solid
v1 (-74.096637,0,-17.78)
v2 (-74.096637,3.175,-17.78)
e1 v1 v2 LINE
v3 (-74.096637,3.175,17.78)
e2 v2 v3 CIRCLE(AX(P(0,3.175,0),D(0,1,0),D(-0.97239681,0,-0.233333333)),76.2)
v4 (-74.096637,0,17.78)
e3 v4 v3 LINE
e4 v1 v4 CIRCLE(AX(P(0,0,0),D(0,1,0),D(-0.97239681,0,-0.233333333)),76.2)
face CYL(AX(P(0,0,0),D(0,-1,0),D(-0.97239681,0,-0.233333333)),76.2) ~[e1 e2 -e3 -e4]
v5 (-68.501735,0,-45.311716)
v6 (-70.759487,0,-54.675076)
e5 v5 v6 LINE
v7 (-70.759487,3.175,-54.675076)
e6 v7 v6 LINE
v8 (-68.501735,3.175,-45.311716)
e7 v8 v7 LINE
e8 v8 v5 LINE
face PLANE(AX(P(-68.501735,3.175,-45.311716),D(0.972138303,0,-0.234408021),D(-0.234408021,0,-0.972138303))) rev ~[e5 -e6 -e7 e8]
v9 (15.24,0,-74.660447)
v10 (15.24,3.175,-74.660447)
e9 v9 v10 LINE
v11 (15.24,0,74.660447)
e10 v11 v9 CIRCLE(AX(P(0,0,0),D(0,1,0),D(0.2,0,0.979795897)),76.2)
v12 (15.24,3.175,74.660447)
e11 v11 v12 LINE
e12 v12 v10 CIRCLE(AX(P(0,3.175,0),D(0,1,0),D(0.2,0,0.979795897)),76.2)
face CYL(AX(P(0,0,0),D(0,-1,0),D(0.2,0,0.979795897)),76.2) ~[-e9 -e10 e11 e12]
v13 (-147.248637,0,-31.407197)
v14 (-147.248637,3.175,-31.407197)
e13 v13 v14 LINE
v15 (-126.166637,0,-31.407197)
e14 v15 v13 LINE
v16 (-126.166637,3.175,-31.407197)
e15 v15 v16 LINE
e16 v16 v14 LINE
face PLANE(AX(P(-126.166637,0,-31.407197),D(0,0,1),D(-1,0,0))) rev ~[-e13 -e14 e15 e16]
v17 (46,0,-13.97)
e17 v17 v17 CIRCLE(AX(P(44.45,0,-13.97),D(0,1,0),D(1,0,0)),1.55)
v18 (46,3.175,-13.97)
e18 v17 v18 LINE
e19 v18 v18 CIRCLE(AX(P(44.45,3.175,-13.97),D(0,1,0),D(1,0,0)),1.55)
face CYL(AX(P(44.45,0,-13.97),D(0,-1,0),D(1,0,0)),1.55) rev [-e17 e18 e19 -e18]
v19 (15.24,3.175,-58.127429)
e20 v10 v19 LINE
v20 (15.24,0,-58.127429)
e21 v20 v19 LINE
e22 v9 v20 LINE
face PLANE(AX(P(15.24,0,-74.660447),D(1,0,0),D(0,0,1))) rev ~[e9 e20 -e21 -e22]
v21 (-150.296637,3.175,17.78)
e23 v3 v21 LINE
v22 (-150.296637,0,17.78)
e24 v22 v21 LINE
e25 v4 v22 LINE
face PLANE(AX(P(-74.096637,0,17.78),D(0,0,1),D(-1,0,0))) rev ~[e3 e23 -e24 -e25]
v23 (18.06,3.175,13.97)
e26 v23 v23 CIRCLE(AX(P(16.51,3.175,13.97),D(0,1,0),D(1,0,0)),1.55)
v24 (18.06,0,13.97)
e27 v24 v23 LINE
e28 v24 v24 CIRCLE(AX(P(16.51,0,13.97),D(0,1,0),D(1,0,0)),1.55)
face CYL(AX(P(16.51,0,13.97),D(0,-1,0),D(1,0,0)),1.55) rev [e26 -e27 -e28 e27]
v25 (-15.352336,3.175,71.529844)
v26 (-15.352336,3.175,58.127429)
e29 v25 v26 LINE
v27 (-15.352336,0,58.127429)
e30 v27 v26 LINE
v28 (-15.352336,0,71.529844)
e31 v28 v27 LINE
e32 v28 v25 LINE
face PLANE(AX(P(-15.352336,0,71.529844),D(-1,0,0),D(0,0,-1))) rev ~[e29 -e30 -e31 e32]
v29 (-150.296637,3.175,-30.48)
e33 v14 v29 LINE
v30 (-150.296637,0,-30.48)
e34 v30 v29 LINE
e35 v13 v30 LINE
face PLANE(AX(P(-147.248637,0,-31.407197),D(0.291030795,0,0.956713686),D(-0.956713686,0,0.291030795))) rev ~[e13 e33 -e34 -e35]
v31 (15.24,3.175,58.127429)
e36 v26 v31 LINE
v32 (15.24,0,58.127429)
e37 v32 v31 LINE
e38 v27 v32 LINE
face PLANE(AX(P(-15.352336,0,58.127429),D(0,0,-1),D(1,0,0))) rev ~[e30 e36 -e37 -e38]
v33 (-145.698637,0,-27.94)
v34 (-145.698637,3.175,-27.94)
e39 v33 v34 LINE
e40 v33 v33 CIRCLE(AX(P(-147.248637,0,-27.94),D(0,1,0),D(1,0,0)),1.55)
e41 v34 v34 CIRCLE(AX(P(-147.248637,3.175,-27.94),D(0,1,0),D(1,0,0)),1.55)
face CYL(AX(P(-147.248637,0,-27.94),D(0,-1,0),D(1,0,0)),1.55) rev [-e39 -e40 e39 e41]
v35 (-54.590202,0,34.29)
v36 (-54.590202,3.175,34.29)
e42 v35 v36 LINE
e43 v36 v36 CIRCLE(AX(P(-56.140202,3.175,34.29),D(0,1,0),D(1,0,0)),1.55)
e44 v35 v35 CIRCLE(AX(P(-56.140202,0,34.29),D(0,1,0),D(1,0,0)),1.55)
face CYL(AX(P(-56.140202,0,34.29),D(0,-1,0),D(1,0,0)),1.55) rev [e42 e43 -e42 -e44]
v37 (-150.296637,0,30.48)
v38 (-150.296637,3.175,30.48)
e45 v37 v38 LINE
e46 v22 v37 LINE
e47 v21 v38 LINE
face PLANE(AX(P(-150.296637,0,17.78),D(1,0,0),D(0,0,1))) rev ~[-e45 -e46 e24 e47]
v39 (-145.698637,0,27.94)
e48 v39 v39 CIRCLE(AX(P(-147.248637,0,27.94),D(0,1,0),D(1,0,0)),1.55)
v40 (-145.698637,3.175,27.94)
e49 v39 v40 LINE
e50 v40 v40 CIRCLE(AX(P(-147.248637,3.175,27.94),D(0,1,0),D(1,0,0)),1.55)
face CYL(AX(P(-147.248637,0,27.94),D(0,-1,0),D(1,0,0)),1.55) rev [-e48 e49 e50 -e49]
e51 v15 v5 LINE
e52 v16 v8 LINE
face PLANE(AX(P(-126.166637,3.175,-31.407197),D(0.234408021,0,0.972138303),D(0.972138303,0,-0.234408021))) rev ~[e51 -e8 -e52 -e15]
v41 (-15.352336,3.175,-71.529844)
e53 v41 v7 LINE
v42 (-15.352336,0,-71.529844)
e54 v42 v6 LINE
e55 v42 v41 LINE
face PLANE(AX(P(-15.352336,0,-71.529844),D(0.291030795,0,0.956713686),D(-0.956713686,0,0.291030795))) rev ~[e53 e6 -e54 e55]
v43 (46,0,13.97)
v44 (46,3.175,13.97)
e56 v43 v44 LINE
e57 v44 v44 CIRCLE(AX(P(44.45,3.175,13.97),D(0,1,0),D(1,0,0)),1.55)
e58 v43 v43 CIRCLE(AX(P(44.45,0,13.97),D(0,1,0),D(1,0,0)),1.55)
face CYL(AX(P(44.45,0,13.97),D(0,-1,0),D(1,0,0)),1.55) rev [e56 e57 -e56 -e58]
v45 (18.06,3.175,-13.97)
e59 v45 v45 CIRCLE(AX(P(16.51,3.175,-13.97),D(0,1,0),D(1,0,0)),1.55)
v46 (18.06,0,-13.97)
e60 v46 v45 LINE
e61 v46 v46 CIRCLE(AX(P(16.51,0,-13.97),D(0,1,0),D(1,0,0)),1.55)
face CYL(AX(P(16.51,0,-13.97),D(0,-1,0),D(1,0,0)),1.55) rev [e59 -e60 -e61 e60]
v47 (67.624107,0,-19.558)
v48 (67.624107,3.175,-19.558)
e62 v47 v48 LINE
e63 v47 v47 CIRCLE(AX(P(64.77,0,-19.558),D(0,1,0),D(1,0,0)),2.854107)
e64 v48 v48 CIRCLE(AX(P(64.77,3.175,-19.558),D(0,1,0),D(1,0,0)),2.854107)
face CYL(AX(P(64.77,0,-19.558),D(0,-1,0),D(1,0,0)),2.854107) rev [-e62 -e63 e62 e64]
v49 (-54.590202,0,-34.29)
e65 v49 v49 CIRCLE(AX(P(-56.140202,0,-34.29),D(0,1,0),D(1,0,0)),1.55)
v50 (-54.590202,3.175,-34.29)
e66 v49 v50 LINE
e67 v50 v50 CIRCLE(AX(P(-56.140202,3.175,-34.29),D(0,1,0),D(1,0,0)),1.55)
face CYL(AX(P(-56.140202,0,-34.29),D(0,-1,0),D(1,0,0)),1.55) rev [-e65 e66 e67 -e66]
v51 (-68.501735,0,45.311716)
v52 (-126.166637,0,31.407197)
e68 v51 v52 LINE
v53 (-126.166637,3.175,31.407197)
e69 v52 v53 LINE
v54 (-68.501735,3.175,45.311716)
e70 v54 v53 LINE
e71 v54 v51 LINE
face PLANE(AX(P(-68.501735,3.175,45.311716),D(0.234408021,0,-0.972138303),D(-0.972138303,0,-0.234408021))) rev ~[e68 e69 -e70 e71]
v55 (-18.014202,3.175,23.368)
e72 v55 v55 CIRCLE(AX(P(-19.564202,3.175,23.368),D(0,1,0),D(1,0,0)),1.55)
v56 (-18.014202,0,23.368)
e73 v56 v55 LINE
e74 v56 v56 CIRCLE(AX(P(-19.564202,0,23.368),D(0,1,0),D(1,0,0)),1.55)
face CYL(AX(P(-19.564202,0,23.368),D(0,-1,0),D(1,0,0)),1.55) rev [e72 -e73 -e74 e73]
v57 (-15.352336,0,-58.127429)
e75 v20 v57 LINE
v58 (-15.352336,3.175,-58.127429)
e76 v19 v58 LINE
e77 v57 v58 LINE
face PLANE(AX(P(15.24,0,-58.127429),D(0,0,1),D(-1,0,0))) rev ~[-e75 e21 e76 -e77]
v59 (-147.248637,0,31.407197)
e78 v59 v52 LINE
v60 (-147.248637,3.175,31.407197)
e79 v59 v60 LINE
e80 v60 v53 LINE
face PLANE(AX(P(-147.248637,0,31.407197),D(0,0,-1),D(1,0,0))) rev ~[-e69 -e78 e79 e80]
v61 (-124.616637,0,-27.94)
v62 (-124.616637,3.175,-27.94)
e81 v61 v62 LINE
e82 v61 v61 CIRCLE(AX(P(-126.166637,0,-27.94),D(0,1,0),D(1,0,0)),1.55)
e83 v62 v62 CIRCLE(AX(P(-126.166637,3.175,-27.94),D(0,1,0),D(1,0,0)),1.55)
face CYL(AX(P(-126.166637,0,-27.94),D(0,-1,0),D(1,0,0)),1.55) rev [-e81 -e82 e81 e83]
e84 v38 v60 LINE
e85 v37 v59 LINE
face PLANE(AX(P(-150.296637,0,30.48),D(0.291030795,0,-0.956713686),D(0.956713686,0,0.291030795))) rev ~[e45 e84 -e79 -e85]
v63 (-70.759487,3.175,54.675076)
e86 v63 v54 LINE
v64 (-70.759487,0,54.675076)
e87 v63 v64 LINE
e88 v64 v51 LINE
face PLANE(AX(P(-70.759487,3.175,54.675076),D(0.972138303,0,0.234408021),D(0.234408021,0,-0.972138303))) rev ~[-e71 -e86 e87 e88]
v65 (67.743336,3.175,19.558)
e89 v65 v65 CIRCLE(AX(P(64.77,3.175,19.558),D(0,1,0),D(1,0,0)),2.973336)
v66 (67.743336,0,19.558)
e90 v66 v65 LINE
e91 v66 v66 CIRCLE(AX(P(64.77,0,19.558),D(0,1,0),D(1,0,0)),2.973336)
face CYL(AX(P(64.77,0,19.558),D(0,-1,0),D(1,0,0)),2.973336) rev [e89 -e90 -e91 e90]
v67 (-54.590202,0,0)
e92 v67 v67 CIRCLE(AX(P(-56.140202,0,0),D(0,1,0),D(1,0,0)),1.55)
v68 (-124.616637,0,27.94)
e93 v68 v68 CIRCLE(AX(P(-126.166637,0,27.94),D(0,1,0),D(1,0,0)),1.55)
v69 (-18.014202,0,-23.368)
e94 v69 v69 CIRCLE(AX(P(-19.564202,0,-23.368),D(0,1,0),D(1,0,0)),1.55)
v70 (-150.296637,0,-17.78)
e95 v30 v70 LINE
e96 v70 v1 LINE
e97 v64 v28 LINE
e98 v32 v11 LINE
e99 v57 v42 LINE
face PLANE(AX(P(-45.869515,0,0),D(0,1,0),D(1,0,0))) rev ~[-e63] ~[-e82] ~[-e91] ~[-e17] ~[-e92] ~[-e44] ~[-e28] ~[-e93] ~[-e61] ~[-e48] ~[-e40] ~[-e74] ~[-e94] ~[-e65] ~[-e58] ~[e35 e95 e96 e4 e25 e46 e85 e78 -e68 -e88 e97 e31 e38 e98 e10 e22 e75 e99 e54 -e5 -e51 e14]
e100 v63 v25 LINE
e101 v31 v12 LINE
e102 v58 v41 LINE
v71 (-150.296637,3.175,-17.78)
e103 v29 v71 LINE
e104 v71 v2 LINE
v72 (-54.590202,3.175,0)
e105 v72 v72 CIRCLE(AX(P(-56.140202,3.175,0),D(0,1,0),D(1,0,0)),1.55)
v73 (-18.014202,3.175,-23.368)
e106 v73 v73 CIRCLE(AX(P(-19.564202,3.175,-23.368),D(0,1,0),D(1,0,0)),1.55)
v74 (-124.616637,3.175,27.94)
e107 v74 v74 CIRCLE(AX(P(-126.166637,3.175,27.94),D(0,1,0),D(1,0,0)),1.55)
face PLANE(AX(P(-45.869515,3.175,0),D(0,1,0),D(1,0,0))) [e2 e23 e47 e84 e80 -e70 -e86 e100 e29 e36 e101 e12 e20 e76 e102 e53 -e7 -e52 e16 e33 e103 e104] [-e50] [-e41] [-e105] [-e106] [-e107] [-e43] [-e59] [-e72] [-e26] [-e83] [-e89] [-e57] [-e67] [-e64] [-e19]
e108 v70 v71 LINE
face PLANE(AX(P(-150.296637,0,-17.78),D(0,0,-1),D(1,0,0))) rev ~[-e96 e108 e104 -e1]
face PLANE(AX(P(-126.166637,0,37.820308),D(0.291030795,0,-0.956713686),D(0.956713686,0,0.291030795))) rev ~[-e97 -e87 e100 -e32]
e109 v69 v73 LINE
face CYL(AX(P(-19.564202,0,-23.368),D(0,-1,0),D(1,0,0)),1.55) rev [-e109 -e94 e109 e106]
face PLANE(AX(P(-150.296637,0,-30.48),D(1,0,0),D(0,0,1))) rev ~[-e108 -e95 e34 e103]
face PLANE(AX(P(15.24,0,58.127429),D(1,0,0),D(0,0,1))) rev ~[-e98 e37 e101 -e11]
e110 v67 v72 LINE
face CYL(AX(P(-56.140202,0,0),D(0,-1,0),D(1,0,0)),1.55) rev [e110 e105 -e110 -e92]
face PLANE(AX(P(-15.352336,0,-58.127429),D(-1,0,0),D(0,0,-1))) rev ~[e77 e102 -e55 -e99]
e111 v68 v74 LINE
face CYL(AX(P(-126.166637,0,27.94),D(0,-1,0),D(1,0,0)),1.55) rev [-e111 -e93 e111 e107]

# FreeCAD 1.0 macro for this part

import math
import FreeCAD as App
import Part
import Sketcher

V = App.Vector
Q = App.Units.Quantity


def add_polygon(sketch, points):
    """Adds a closed chain of lines whose ends are joined by coincident constraints."""
    first, n = sketch.GeometryCount, len(points)
    for a, b in zip(points, points[1:] + points[:1]):
        sketch.addGeometry(Part.LineSegment(App.Vector(*a, 0), App.Vector(*b, 0)), False)
    for i in range(n):
        sketch.addConstraint(Sketcher.Constraint("Coincident", first + i, 2, first + (i + 1) % n, 1))

doc = App.newDocument("Part")
body = doc.addObject("PartDesign::Body", "Body")

sketch1 = body.newObject("Sketcher::SketchObject", "Sketch")
sketch1.AttachmentSupport = (doc.getObject("XZ_Plane"), [""])
sketch1.MapMode = "FlatFace"
sketch1.addGeometry([
    Part.LineSegment(V(-15.352336, -71.529844, 0), V(-126.166637, -37.820308, 0)),
    Part.LineSegment(V(-126.166637, -37.820308, 0), V(-126.166637, -31.407197, 0)),
    Part.LineSegment(V(-126.166637, -31.407197, 0), V(-147.248637, -31.407197, 0)),
    Part.LineSegment(V(-147.248637, -31.407197, 0), V(-150.296637, -30.48, 0)),
    Part.LineSegment(V(-150.296637, -30.48, 0), V(-150.296637, -17.78, 0)),
    Part.LineSegment(V(-150.296637, -17.78, 0), V(-74.096637, -17.78, 0)),
    Part.ArcOfCircle(Part.Circle(V(0, 0, 0), V(0, 0, 1), 76.2), math.radians(166.506601), math.radians(193.493399)),
    Part.LineSegment(V(-74.096637, 17.78, 0), V(-150.296637, 17.78, 0)),
    Part.LineSegment(V(-150.296637, 17.78, 0), V(-150.296637, 30.48, 0)),
    Part.LineSegment(V(-150.296637, 30.48, 0), V(-147.248637, 31.407197, 0)),
    Part.LineSegment(V(-147.248637, 31.407197, 0), V(-126.166637, 31.407197, 0)),
    Part.LineSegment(V(-126.166637, 31.407197, 0), V(-126.166637, 37.820308, 0)),
    Part.LineSegment(V(-126.166637, 37.820308, 0), V(-15.352336, 71.529844, 0)),
    Part.LineSegment(V(-15.352336, 71.529844, 0), V(-15.352336, 58.127429, 0)),
    Part.LineSegment(V(-15.352336, 58.127429, 0), V(15.24, 58.127429, 0)),
    Part.LineSegment(V(15.24, 58.127429, 0), V(15.24, 74.660447, 0)),
    Part.ArcOfCircle(Part.Circle(V(0, 0, 0), V(0, 0, 1), 76.2), math.radians(-78.463041), math.radians(78.463041)),
    Part.LineSegment(V(15.24, -74.660447, 0), V(15.24, -58.127429, 0)),
    Part.LineSegment(V(15.24, -58.127429, 0), V(-15.352336, -58.127429, 0)),
    Part.LineSegment(V(-15.352336, -58.127429, 0), V(-15.352336, -71.529844, 0)),
    Part.Circle(V(-147.248637, 27.94, 0), V(0, 0, 1), 1.55),
    Part.Circle(V(-126.166637, 27.94, 0), V(0, 0, 1), 1.55),
    Part.Circle(V(-56.140202, 34.29, 0), V(0, 0, 1), 1.55),
    Part.Circle(V(-19.564202, 23.368, 0), V(0, 0, 1), 1.55),
    Part.Circle(V(64.77, 19.558, 0), V(0, 0, 1), 2.973336),
    Part.Circle(V(16.51, 13.97, 0), V(0, 0, 1), 1.55),
    Part.Circle(V(44.45, 13.97, 0), V(0, 0, 1), 1.55),
    Part.Circle(V(-56.140202, 0, 0), V(0, 0, 1), 1.55),
    Part.Circle(V(-147.248637, -27.94, 0), V(0, 0, 1), 1.55),
    Part.Circle(V(-126.166637, -27.94, 0), V(0, 0, 1), 1.55),
    Part.Circle(V(-56.140202, -34.29, 0), V(0, 0, 1), 1.55),
    Part.Circle(V(16.51, -13.97, 0), V(0, 0, 1), 1.55),
    Part.Circle(V(44.45, -13.97, 0), V(0, 0, 1), 1.55),
    Part.Circle(V(-19.564202, -23.368, 0), V(0, 0, 1), 1.55),
    Part.Circle(V(64.77, -19.558, 0), V(0, 0, 1), 2.854107),
], False)
sketch1.addConstraint([
    Sketcher.Constraint("Coincident", 0, 2, 1, 1),
    Sketcher.Constraint("Coincident", 1, 2, 2, 1),
    Sketcher.Constraint("Coincident", 2, 2, 3, 1),
    Sketcher.Constraint("Coincident", 3, 2, 4, 1),
    Sketcher.Constraint("Coincident", 4, 2, 5, 1),
    Sketcher.Constraint("Coincident", 5, 2, 6, 2),
    Sketcher.Constraint("Coincident", 6, 1, 7, 1),
    Sketcher.Constraint("Coincident", 7, 2, 8, 1),
    Sketcher.Constraint("Coincident", 8, 2, 9, 1),
    Sketcher.Constraint("Coincident", 9, 2, 10, 1),
    Sketcher.Constraint("Coincident", 10, 2, 11, 1),
    Sketcher.Constraint("Coincident", 11, 2, 12, 1),
    Sketcher.Constraint("Coincident", 12, 2, 13, 1),
    Sketcher.Constraint("Coincident", 13, 2, 14, 1),
    Sketcher.Constraint("Coincident", 14, 2, 15, 1),
    Sketcher.Constraint("Coincident", 15, 2, 16, 2),
    Sketcher.Constraint("Coincident", 16, 1, 17, 1),
    Sketcher.Constraint("Coincident", 17, 2, 18, 1),
    Sketcher.Constraint("Coincident", 18, 2, 19, 1),
    Sketcher.Constraint("Coincident", 19, 2, 0, 1),
    Sketcher.Constraint("Vertical", 1),
    Sketcher.Constraint("Horizontal", 2),
    Sketcher.Constraint("Vertical", 4),
    Sketcher.Constraint("Horizontal", 5),
    Sketcher.Constraint("Horizontal", 7),
    Sketcher.Constraint("Vertical", 8),
    Sketcher.Constraint("Horizontal", 10),
    Sketcher.Constraint("Vertical", 11),
    Sketcher.Constraint("Vertical", 13),
    Sketcher.Constraint("Horizontal", 14),
    Sketcher.Constraint("Vertical", 15),
    Sketcher.Constraint("Vertical", 17),
    Sketcher.Constraint("Horizontal", 18),
    Sketcher.Constraint("Vertical", 19),
    Sketcher.Constraint("Coincident", 6, 3, -1, 1),
    Sketcher.Constraint("Coincident", 16, 3, -1, 1),
    Sketcher.Constraint("Equal", 6, 16),
    Sketcher.Constraint("Equal", 20, 21),
    Sketcher.Constraint("Equal", 21, 22),
    Sketcher.Constraint("Equal", 22, 23),
    Sketcher.Constraint("Equal", 23, 25),
    Sketcher.Constraint("Equal", 25, 26),
    Sketcher.Constraint("Equal", 26, 27),
    Sketcher.Constraint("Equal", 27, 28),
    Sketcher.Constraint("Equal", 28, 29),
    Sketcher.Constraint("Equal", 29, 30),
    Sketcher.Constraint("Equal", 30, 31),
    Sketcher.Constraint("Equal", 31, 32),
    Sketcher.Constraint("Equal", 32, 33),
    Sketcher.Constraint("Symmetric", 20, 3, 28, 3, -1),
    Sketcher.Constraint("Symmetric", 21, 3, 29, 3, -1),
    Sketcher.Constraint("Symmetric", 22, 3, 30, 3, -1),
    Sketcher.Constraint("Symmetric", 25, 3, 31, 3, -1),
    Sketcher.Constraint("Symmetric", 26, 3, 32, 3, -1),
    Sketcher.Constraint("Symmetric", 23, 3, 33, 3, -1),
    Sketcher.Constraint("Symmetric", 24, 3, 34, 3, -1),
    Sketcher.Constraint("Symmetric", 4, 2, 7, 2, -1),
    Sketcher.Constraint("Symmetric", 2, 2, 9, 2, -1),
    Sketcher.Constraint("Symmetric", 0, 2, 11, 2, -1),
    Sketcher.Constraint("Symmetric", 14, 2, 17, 2, -1),
    Sketcher.Constraint("Symmetric", 12, 2, 19, 2, -1),
    Sketcher.Constraint("PointOnObject", 27, 3, -1),
    Sketcher.Constraint("Parallel", 0, 3),
    Sketcher.Constraint("Parallel", 9, 12),
    Sketcher.Constraint("Horizontal", 20, 3, 21, 3),
    Sketcher.Constraint("Horizontal", 25, 3, 26, 3),
    Sketcher.Constraint("Vertical", 22, 3, 27, 3),
    Sketcher.Constraint("Vertical", 29, 3, 0, 2),
    Sketcher.Constraint("Vertical", 28, 3, 2, 2),
    Sketcher.Constraint("Radius", 6, Q("3 in")),
    Sketcher.Constraint("DistanceX", 5, 1, 5, 2, Q("3 in")),
    Sketcher.Constraint("DistanceY", 4, 1, 4, 2, Q("0.5 in")),
    Sketcher.Constraint("DistanceX", 2, 2, 2, 1, Q("0.83 in")),
    Sketcher.Constraint("DistanceY", -1, 1, 20, 3, Q("1.1 in")),
    Sketcher.Constraint("DistanceY", 3, 2, -1, 1, Q("1.2 in")),
    Sketcher.Constraint("DistanceX", -1, 1, 14, 2, Q("0.6 in")),
    Sketcher.Constraint("DistanceX", 25, 3, 24, 3, Q("1.9 in")),
    Sketcher.Constraint("DistanceY", 25, 3, 22, 3, Q("0.8 in")),
    Sketcher.Constraint("DistanceX", 26, 3, 24, 3, Q("0.8 in")),
    Sketcher.Constraint("DistanceY", 30, 3, 22, 3, Q("2.7 in")),
    Sketcher.Constraint("Diameter", 20, 3.1),
    Sketcher.Constraint("DistanceY", -1, 1, 23, 3, Q("0.92 in")),
    Sketcher.Constraint("DistanceX", -1, 1, 24, 3, Q("2.55 in")),
    Sketcher.Constraint("DistanceY", -1, 1, 24, 3, Q("0.77 in")),
    Sketcher.Constraint("DistanceX", 22, 3, 23, 3, Q("1.44 in")),
    Sketcher.Constraint("DistanceX", 3, 2, 2, 2, Q("0.12 in")),
    Sketcher.Constraint("Diameter", 24, 5.946671),
    Sketcher.Constraint("Diameter", 34, 5.708213),
    Sketcher.Constraint("DistanceY", 1, 1, 1, 2, 6.413111),
    Sketcher.Constraint("DistanceY", 15, 1, 15, 2, 16.533019),
    Sketcher.Constraint("DistanceX", 22, 3, -1, 1, 56.140202),
    Sketcher.Constraint("Distance", 0, 115.828071),
    Sketcher.Constraint("DistanceX", 14, 1, 14, 2, 30.592336),
])
pad1 = body.newObject("PartDesign::Pad", "Pad")
pad1.Profile = sketch1
pad1.Length = Q("0.125 in")
pad1.Reversed = True

sketch2 = body.newObject("Sketcher::SketchObject", "Sketch001")
sketch2.AttachmentSupport = (doc.getObject("XZ_Plane"), [""])
sketch2.MapMode = "FlatFace"
sketch2.AttachmentOffset = App.Placement(V(0, 0, -0.125 * 25.4), App.Rotation())
add_polygon(sketch2, [(-126.166637, -31.407197), (-68.501735, -45.311716), (-70.759487, -54.675076), (-126.166637, -37.820308)])
add_polygon(sketch2, [(-68.501735, 45.311716), (-126.166637, 31.407197), (-126.166637, 37.820308), (-70.759487, 54.675076)])
sketch2.addConstraint([
    Sketcher.Constraint("Vertical", 3),
    Sketcher.Constraint("Vertical", 5),
    Sketcher.Constraint("Symmetric", 3, 2, 4, 2, -1),
    Sketcher.Constraint("Symmetric", 1, 2, 6, 2, -1),
    Sketcher.Constraint("Symmetric", 0, 2, 7, 2, -1),
    Sketcher.Constraint("Perpendicular", 0, 1),
    Sketcher.Constraint("Equal", 3, 5),
    Sketcher.Constraint("DistanceY", 3, 1, 3, 2, 6.413111),
    Sketcher.Constraint("DistanceX", 2, 2, 0, 2, 57.664902),
    Sketcher.Constraint("Distance", 0, 59.317591),
    Sketcher.Constraint("DistanceX", 1, 2, 0, 2, 2.257751),
    Sketcher.Constraint("DistanceY", 0, 2, 6, 2, 99.986792),
    Sketcher.Constraint("DistanceX", 0, 2, -1, 1, 68.501735),
])
pocket1 = body.newObject("PartDesign::Pocket", "Pocket")
pocket1.Profile = sketch2
pocket1.Length = Q("0.125 in")
pocket1.Reversed = True

doc.recompute()
